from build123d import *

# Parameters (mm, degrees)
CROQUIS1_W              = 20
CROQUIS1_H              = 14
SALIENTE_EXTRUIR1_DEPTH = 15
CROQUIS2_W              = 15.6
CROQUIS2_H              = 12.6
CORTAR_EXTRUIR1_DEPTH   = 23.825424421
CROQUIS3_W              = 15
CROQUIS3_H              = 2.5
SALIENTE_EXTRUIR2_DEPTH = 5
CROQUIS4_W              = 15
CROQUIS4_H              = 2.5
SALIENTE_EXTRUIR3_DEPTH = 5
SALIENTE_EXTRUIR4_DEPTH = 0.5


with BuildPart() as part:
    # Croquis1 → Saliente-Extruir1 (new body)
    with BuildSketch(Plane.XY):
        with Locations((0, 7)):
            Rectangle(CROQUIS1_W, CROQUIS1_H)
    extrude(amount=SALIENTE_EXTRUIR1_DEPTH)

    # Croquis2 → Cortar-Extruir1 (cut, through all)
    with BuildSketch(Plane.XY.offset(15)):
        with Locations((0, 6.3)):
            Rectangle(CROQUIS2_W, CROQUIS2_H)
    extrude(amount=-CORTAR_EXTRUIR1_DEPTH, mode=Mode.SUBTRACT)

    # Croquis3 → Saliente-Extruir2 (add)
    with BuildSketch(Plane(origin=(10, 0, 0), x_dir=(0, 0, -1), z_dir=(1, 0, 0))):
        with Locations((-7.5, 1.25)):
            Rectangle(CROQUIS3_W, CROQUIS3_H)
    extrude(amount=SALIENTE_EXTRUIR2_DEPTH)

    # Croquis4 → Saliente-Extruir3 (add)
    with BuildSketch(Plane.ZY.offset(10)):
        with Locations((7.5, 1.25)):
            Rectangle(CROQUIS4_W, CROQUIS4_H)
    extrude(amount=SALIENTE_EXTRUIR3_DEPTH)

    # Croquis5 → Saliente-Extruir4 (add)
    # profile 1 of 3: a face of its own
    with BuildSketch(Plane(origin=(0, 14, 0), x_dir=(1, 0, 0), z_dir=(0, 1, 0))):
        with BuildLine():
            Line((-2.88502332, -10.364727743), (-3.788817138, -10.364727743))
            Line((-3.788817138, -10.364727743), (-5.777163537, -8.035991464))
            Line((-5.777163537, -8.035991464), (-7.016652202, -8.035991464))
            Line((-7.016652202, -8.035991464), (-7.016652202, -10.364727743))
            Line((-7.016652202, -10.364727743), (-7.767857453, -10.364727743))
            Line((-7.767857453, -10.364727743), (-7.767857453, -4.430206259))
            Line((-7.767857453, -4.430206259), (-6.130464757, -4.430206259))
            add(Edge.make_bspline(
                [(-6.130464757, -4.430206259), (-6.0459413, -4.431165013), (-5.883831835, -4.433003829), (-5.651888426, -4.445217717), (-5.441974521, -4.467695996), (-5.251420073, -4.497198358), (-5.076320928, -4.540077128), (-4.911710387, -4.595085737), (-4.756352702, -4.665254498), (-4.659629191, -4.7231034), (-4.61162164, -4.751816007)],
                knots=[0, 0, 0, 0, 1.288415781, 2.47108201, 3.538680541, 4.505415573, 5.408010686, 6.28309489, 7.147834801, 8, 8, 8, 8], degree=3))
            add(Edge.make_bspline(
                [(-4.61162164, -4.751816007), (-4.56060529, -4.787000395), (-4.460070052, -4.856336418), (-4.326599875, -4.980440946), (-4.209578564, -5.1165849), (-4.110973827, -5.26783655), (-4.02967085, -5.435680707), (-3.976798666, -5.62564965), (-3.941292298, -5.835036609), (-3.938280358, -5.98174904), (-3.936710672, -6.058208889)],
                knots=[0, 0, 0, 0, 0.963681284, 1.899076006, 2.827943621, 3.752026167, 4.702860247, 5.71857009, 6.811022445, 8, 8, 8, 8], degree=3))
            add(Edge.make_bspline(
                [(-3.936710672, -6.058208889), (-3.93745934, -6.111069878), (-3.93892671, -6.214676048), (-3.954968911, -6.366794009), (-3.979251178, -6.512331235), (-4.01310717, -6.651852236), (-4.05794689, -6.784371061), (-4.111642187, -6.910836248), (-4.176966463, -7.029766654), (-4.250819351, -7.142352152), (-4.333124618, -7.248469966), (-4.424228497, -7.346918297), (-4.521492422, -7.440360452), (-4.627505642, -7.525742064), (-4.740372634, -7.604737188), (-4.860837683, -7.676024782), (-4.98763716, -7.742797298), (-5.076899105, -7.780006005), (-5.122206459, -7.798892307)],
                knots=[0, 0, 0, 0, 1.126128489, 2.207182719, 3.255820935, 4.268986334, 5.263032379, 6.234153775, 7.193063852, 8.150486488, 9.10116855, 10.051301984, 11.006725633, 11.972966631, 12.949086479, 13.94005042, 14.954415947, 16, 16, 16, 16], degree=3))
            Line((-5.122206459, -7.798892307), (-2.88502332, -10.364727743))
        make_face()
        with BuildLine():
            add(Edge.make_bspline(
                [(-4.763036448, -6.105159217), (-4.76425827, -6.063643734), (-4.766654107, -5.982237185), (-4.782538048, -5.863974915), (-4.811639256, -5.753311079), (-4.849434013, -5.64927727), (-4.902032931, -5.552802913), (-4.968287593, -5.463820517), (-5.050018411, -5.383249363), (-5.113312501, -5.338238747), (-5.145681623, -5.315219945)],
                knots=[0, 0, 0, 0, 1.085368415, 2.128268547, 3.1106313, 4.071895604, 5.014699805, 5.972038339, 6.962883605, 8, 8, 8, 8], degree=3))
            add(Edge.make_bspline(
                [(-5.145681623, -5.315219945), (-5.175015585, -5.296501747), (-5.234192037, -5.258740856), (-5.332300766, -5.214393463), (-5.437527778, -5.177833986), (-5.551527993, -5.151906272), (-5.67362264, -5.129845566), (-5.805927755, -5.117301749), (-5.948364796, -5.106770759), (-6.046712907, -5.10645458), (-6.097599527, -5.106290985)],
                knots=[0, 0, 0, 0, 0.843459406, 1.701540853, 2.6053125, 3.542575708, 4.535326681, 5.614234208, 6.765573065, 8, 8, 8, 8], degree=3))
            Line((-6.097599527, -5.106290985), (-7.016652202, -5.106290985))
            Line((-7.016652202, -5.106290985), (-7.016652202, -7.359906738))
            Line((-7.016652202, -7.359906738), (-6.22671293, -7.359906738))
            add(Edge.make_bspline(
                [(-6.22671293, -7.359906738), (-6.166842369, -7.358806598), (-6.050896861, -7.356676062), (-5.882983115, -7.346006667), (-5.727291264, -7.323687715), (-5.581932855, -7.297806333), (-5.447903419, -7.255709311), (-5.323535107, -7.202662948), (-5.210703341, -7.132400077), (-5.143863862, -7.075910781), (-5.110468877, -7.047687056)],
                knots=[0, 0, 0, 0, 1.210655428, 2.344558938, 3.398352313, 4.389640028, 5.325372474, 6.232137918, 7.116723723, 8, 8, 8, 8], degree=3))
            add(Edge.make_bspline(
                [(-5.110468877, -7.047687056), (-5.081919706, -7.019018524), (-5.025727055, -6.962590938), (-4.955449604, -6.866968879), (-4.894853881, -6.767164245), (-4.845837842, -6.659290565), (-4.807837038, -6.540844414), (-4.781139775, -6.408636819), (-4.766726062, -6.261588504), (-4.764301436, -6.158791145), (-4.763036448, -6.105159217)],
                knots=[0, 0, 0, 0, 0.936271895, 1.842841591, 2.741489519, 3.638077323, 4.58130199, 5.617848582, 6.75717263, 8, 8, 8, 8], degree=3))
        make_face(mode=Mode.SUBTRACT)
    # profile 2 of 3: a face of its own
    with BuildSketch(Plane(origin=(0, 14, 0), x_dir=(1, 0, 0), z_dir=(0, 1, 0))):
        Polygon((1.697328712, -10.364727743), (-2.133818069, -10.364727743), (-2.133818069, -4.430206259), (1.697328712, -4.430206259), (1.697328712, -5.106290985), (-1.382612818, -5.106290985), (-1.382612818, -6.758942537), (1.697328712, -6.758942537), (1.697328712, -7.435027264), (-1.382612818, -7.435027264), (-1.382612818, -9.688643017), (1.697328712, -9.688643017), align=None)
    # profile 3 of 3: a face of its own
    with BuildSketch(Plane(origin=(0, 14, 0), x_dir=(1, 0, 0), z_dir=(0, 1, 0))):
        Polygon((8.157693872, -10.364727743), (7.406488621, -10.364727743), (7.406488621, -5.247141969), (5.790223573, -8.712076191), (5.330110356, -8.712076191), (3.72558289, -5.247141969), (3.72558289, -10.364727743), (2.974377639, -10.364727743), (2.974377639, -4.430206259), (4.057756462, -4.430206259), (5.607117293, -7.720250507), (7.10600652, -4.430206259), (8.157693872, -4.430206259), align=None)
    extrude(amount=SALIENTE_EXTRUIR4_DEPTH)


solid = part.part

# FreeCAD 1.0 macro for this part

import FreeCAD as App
import Part
import Sketcher

V = App.Vector
Q = App.Units.Quantity

doc = App.newDocument("Part")
params = doc.addObject("Spreadsheet::Sheet", "Params")
for row, (alias, value) in enumerate([
    ("sketch1_width", "20 mm"),
    ("sketch1_height", "14 mm"),
    ("pad1_length", "15 mm"),
    ("sketch2_width", "15.6 mm"),
    ("sketch2_height", "12.6 mm"),
    ("sketch3_height", "15 mm"),
    ("sketch3_width", "2.5 mm"),
    ("pad2_length", "5 mm"),
    ("sketch4_height", "15 mm"),
    ("sketch4_width", "2.5 mm"),
    ("pad3_length", "5 mm"),
    ("pad4_length", "0.5 mm"),
], start=1):
    params.set(f"A{row}", alias)
    params.set(f"B{row}", "=" + value)
    params.setAlias(f"B{row}", alias)

body = doc.addObject("PartDesign::Body", "Body")

sketch1 = doc.addObject("Sketcher::SketchObject", "Sketch")
body.addObject(sketch1)
sketch1.AttachmentSupport = (doc.XY_Plane, [""])
sketch1.MapMode = "FlatFace"
sketch1.addGeometry([
    Part.LineSegment(V(-10, 14, 0), V(-10, 0, 0)),
    Part.LineSegment(V(-10, 0, 0), V(10, 0, 0)),
    Part.LineSegment(V(10, 0, 0), V(10, 14, 0)),
    Part.LineSegment(V(10, 14, 0), V(-10, 14, 0)),
], False)
sketch1.addConstraint([
    Sketcher.Constraint("Coincident", 0, 2, 1, 1),
    Sketcher.Constraint("Coincident", 1, 2, 2, 1),
    Sketcher.Constraint("Coincident", 2, 2, 3, 1),
    Sketcher.Constraint("Coincident", 3, 2, 0, 1),
    Sketcher.Constraint("Vertical", 0),
    Sketcher.Constraint("Horizontal", 1),
    Sketcher.Constraint("Vertical", 2),
    Sketcher.Constraint("Horizontal", 3),
    Sketcher.Constraint("Symmetric", 0, 2, 1, 2, -1, 1),
    Sketcher.Constraint("DistanceX", 1, 1, 1, 2, Q("20 mm")),
    Sketcher.Constraint("DistanceY", 0, 2, 0, 1, Q("14 mm")),
])
sketch1.setExpression("Constraints[9]", "Params.sketch1_width")
sketch1.setExpression("Constraints[10]", "Params.sketch1_height")
pad1 = doc.addObject("PartDesign::Pad", "Pad")
body.addObject(pad1)
pad1.Profile = sketch1
pad1.setExpression("Length", "Params.pad1_length")

sketch2 = doc.addObject("Sketcher::SketchObject", "Sketch001")
body.addObject(sketch2)
sketch2.AttachmentSupport = (doc.XY_Plane, [""])
sketch2.MapMode = "FlatFace"
sketch2.AttachmentOffset = App.Placement(V(0, 0, 15), App.Rotation())
sketch2.addGeometry([
    Part.LineSegment(V(-7.8, 12.6, 0), V(-7.8, 0, 0)),
    Part.LineSegment(V(-7.8, 0, 0), V(7.8, 0, 0)),
    Part.LineSegment(V(7.8, 0, 0), V(7.8, 12.6, 0)),
    Part.LineSegment(V(7.8, 12.6, 0), V(-7.8, 12.6, 0)),
], False)
sketch2.addConstraint([
    Sketcher.Constraint("Coincident", 0, 2, 1, 1),
    Sketcher.Constraint("Coincident", 1, 2, 2, 1),
    Sketcher.Constraint("Coincident", 2, 2, 3, 1),
    Sketcher.Constraint("Coincident", 3, 2, 0, 1),
    Sketcher.Constraint("Vertical", 0),
    Sketcher.Constraint("Horizontal", 1),
    Sketcher.Constraint("Vertical", 2),
    Sketcher.Constraint("Horizontal", 3),
    Sketcher.Constraint("Symmetric", 0, 2, 1, 2, -1, 1),
    Sketcher.Constraint("DistanceX", 1, 1, 1, 2, Q("15.6 mm")),
    Sketcher.Constraint("DistanceY", 0, 2, 0, 1, Q("12.6 mm")),
])
sketch2.setExpression("Constraints[9]", "Params.sketch2_width")
sketch2.setExpression("Constraints[10]", "Params.sketch2_height")
pocket1 = doc.addObject("PartDesign::Pocket", "Pocket")
body.addObject(pocket1)
pocket1.Profile = sketch2
pocket1.Type = "ThroughAll"

sketch3 = doc.addObject("Sketcher::SketchObject", "Sketch002")
body.addObject(sketch3)
sketch3.AttachmentSupport = (doc.YZ_Plane, [""])
sketch3.MapMode = "FlatFace"
sketch3.AttachmentOffset = App.Placement(V(0, 0, 10), App.Rotation())
sketch3.addGeometry([
    Part.LineSegment(V(2.5, 15, 0), V(0, 15, 0)),
    Part.LineSegment(V(0, 15, 0), V(0, 0, 0)),
    Part.LineSegment(V(0, 0, 0), V(2.5, 0, 0)),
    Part.LineSegment(V(2.5, 0, 0), V(2.5, 15, 0)),
], False)
sketch3.addConstraint([
    Sketcher.Constraint("Coincident", 0, 2, 1, 1),
    Sketcher.Constraint("Coincident", 1, 2, 2, 1),
    Sketcher.Constraint("Coincident", 2, 2, 3, 1),
    Sketcher.Constraint("Coincident", 3, 2, 0, 1),
    Sketcher.Constraint("Horizontal", 0),
    Sketcher.Constraint("Vertical", 1),
    Sketcher.Constraint("Horizontal", 2),
    Sketcher.Constraint("Vertical", 3),
    Sketcher.Constraint("Coincident", 1, 2, -1, 1),
    Sketcher.Constraint("DistanceY", 1, 2, 1, 1, Q("15 mm")),
    Sketcher.Constraint("DistanceX", 0, 2, 0, 1, Q("2.5 mm")),
])
sketch3.setExpression("Constraints[9]", "Params.sketch3_height")
sketch3.setExpression("Constraints[10]", "Params.sketch3_width")
pad2 = doc.addObject("PartDesign::Pad", "Pad001")
body.addObject(pad2)
pad2.Profile = sketch3
pad2.setExpression("Length", "Params.pad2_length")

sketch4 = doc.addObject("Sketcher::SketchObject", "Sketch003")
body.addObject(sketch4)
sketch4.AttachmentSupport = (doc.YZ_Plane, [""])
sketch4.MapMode = "FlatFace"
sketch4.AttachmentOffset = App.Placement(V(0, 0, -10), App.Rotation())
sketch4.addGeometry([
    Part.LineSegment(V(2.5, 0, 0), V(0, 0, 0)),
    Part.LineSegment(V(0, 0, 0), V(0, 15, 0)),
    Part.LineSegment(V(0, 15, 0), V(2.5, 15, 0)),
    Part.LineSegment(V(2.5, 15, 0), V(2.5, 0, 0)),
], False)
sketch4.addConstraint([
    Sketcher.Constraint("Coincident", 0, 2, 1, 1),
    Sketcher.Constraint("Coincident", 1, 2, 2, 1),
    Sketcher.Constraint("Coincident", 2, 2, 3, 1),
    Sketcher.Constraint("Coincident", 3, 2, 0, 1),
    Sketcher.Constraint("Horizontal", 0),
    Sketcher.Constraint("Vertical", 1),
    Sketcher.Constraint("Horizontal", 2),
    Sketcher.Constraint("Vertical", 3),
    Sketcher.Constraint("Coincident", 0, 2, -1, 1),
    Sketcher.Constraint("DistanceY", 1, 1, 1, 2, Q("15 mm")),
    Sketcher.Constraint("DistanceX", 0, 2, 0, 1, Q("2.5 mm")),
])
sketch4.setExpression("Constraints[9]", "Params.sketch4_height")
sketch4.setExpression("Constraints[10]", "Params.sketch4_width")
pad3 = doc.addObject("PartDesign::Pad", "Pad002")
body.addObject(pad3)
pad3.Profile = sketch4
pad3.setExpression("Length", "Params.pad3_length")
pad3.Reversed = True

sketch5 = doc.addObject("Sketcher::SketchObject", "Sketch004")
body.addObject(sketch5)
sketch5.AttachmentSupport = (doc.XZ_Plane, [""])
sketch5.MapMode = "FlatFace"
sketch5.AttachmentOffset = App.Placement(V(0, 0, -14), App.Rotation())
sketch5.addGeometry([
    Part.LineSegment(V(-3.788817, 10.364728, 0), V(-2.885023, 10.364728, 0)),
    Part.LineSegment(V(-2.885023, 10.364728, 0), V(-5.122206, 7.798892, 0)),
    Part.BSplineCurve([V(-3.936711, 6.058209, 0), V(-3.937459, 6.11107, 0), V(-3.938927, 6.214676, 0), V(-3.954969, 6.366794, 0), V(-3.979251, 6.512331, 0), V(-4.013107, 6.651852, 0), V(-4.057947, 6.784371, 0), V(-4.111642, 6.910836, 0), V(-4.176966, 7.029767, 0), V(-4.250819, 7.142352, 0), V(-4.333125, 7.24847, 0), V(-4.424228, 7.346918, 0), V(-4.521492, 7.44036, 0), V(-4.627506, 7.525742, 0), V(-4.740373, 7.604737, 0), V(-4.860838, 7.676025, 0), V(-4.987637, 7.742797, 0), V(-5.076899, 7.780006, 0), V(-5.122206, 7.798892, 0)], [4, 1, 1, 1, 1, 1, 1, 1, 1, 1, 1, 1, 1, 1, 1, 1, 4], [0, 1.126128489, 2.207182719, 3.255820935, 4.268986334, 5.263032379, 6.234153775, 7.193063852, 8.150486488, 9.10116855, 10.051301984, 11.006725633, 11.972966631, 12.949086479, 13.94005042, 14.954415947, 16], False, 3, [1, 1, 1, 1, 1, 1, 1, 1, 1, 1, 1, 1, 1, 1, 1, 1, 1, 1, 1], False),
    Part.BSplineCurve([V(-4.611622, 4.751816, 0), V(-4.560605, 4.787, 0), V(-4.46007, 4.856336, 0), V(-4.3266, 4.980441, 0), V(-4.209579, 5.116585, 0), V(-4.110974, 5.267837, 0), V(-4.029671, 5.435681, 0), V(-3.976799, 5.62565, 0), V(-3.941292, 5.835037, 0), V(-3.93828, 5.981749, 0), V(-3.936711, 6.058209, 0)], [4, 1, 1, 1, 1, 1, 1, 1, 4], [0, 0.963681284, 1.899076006, 2.827943621, 3.752026167, 4.702860247, 5.71857009, 6.811022445, 8], False, 3, [1, 1, 1, 1, 1, 1, 1, 1, 1, 1, 1], False),
    Part.BSplineCurve([V(-6.130465, 4.430206, 0), V(-6.045941, 4.431165, 0), V(-5.883832, 4.433004, 0), V(-5.651888, 4.445218, 0), V(-5.441975, 4.467696, 0), V(-5.25142, 4.497198, 0), V(-5.076321, 4.540077, 0), V(-4.91171, 4.595086, 0), V(-4.756353, 4.665254, 0), V(-4.659629, 4.723103, 0), V(-4.611622, 4.751816, 0)], [4, 1, 1, 1, 1, 1, 1, 1, 4], [0, 1.288415781, 2.47108201, 3.538680541, 4.505415573, 5.408010686, 6.28309489, 7.147834801, 8], False, 3, [1, 1, 1, 1, 1, 1, 1, 1, 1, 1, 1], False),
    Part.LineSegment(V(-6.130465, 4.430206, 0), V(-7.767857, 4.430206, 0)),
    Part.LineSegment(V(-7.767857, 4.430206, 0), V(-7.767857, 10.364728, 0)),
    Part.LineSegment(V(-7.767857, 10.364728, 0), V(-7.016652, 10.364728, 0)),
    Part.LineSegment(V(-7.016652, 10.364728, 0), V(-7.016652, 8.035991, 0)),
    Part.LineSegment(V(-7.016652, 8.035991, 0), V(-5.777164, 8.035991, 0)),
    Part.LineSegment(V(-5.777164, 8.035991, 0), V(-3.788817, 10.364728, 0)),
    Part.BSplineCurve([V(-5.110469, 7.047687, 0), V(-5.08192, 7.019019, 0), V(-5.025727, 6.962591, 0), V(-4.95545, 6.866969, 0), V(-4.894854, 6.767164, 0), V(-4.845838, 6.659291, 0), V(-4.807837, 6.540844, 0), V(-4.78114, 6.408637, 0), V(-4.766726, 6.261589, 0), V(-4.764301, 6.158791, 0), V(-4.763036, 6.105159, 0)], [4, 1, 1, 1, 1, 1, 1, 1, 4], [0, 0.936271895, 1.842841591, 2.741489519, 3.638077323, 4.58130199, 5.617848582, 6.75717263, 8], False, 3, [1, 1, 1, 1, 1, 1, 1, 1, 1, 1, 1], False),
    Part.BSplineCurve([V(-6.226713, 7.359907, 0), V(-6.166842, 7.358807, 0), V(-6.050897, 7.356676, 0), V(-5.882983, 7.346007, 0), V(-5.727291, 7.323688, 0), V(-5.581933, 7.297806, 0), V(-5.447903, 7.255709, 0), V(-5.323535, 7.202663, 0), V(-5.210703, 7.1324, 0), V(-5.143864, 7.075911, 0), V(-5.110469, 7.047687, 0)], [4, 1, 1, 1, 1, 1, 1, 1, 4], [0, 1.210655428, 2.344558938, 3.398352313, 4.389640028, 5.325372474, 6.232137918, 7.116723723, 8], False, 3, [1, 1, 1, 1, 1, 1, 1, 1, 1, 1, 1], False),
    Part.LineSegment(V(-6.226713, 7.359907, 0), V(-7.016652, 7.359907, 0)),
    Part.LineSegment(V(-7.016652, 7.359907, 0), V(-7.016652, 5.106291, 0)),
    Part.LineSegment(V(-7.016652, 5.106291, 0), V(-6.0976, 5.106291, 0)),
    Part.BSplineCurve([V(-5.145682, 5.31522, 0), V(-5.175016, 5.296502, 0), V(-5.234192, 5.258741, 0), V(-5.332301, 5.214393, 0), V(-5.437528, 5.177834, 0), V(-5.551528, 5.151906, 0), V(-5.673623, 5.129846, 0), V(-5.805928, 5.117302, 0), V(-5.948365, 5.106771, 0), V(-6.046713, 5.106455, 0), V(-6.0976, 5.106291, 0)], [4, 1, 1, 1, 1, 1, 1, 1, 4], [0, 0.843459406, 1.701540853, 2.6053125, 3.542575708, 4.535326681, 5.614234208, 6.765573065, 8], False, 3, [1, 1, 1, 1, 1, 1, 1, 1, 1, 1, 1], False),
    Part.BSplineCurve([V(-4.763036, 6.105159, 0), V(-4.764258, 6.063644, 0), V(-4.766654, 5.982237, 0), V(-4.782538, 5.863975, 0), V(-4.811639, 5.753311, 0), V(-4.849434, 5.649277, 0), V(-4.902033, 5.552803, 0), V(-4.968288, 5.463821, 0), V(-5.050018, 5.383249, 0), V(-5.113313, 5.338239, 0), V(-5.145682, 5.31522, 0)], [4, 1, 1, 1, 1, 1, 1, 1, 4], [0, 1.085368415, 2.128268547, 3.1106313, 4.071895604, 5.014699805, 5.972038339, 6.962883605, 8], False, 3, [1, 1, 1, 1, 1, 1, 1, 1, 1, 1, 1], False),
    Part.LineSegment(V(-2.133818, 10.364728, 0), V(1.697329, 10.364728, 0)),
    Part.LineSegment(V(1.697329, 10.364728, 0), V(1.697329, 9.688643, 0)),
    Part.LineSegment(V(1.697329, 9.688643, 0), V(-1.382613, 9.688643, 0)),
    Part.LineSegment(V(-1.382613, 9.688643, 0), V(-1.382613, 7.435027, 0)),
    Part.LineSegment(V(-1.382613, 7.435027, 0), V(1.697329, 7.435027, 0)),
    Part.LineSegment(V(1.697329, 7.435027, 0), V(1.697329, 6.758943, 0)),
    Part.LineSegment(V(1.697329, 6.758943, 0), V(-1.382613, 6.758943, 0)),
    Part.LineSegment(V(-1.382613, 6.758943, 0), V(-1.382613, 5.106291, 0)),
    Part.LineSegment(V(-1.382613, 5.106291, 0), V(1.697329, 5.106291, 0)),
    Part.LineSegment(V(1.697329, 5.106291, 0), V(1.697329, 4.430206, 0)),
    Part.LineSegment(V(1.697329, 4.430206, 0), V(-2.133818, 4.430206, 0)),
    Part.LineSegment(V(-2.133818, 4.430206, 0), V(-2.133818, 10.364728, 0)),
    Part.LineSegment(V(7.406489, 10.364728, 0), V(8.157694, 10.364728, 0)),
    Part.LineSegment(V(8.157694, 10.364728, 0), V(8.157694, 4.430206, 0)),
    Part.LineSegment(V(8.157694, 4.430206, 0), V(7.106007, 4.430206, 0)),
    Part.LineSegment(V(7.106007, 4.430206, 0), V(5.607117, 7.720251, 0)),
    Part.LineSegment(V(5.607117, 7.720251, 0), V(4.057756, 4.430206, 0)),
    Part.LineSegment(V(4.057756, 4.430206, 0), V(2.974378, 4.430206, 0)),
    Part.LineSegment(V(2.974378, 4.430206, 0), V(2.974378, 10.364728, 0)),
    Part.LineSegment(V(2.974378, 10.364728, 0), V(3.725583, 10.364728, 0)),
    Part.LineSegment(V(3.725583, 10.364728, 0), V(3.725583, 5.247142, 0)),
    Part.LineSegment(V(3.725583, 5.247142, 0), V(5.33011, 8.712076, 0)),
    Part.LineSegment(V(5.33011, 8.712076, 0), V(5.790224, 8.712076, 0)),
    Part.LineSegment(V(5.790224, 8.712076, 0), V(7.406489, 5.247142, 0)),
    Part.LineSegment(V(7.406489, 5.247142, 0), V(7.406489, 10.364728, 0)),
], False)
sketch5.addConstraint([
    Sketcher.Constraint("Block", 2),
    Sketcher.Constraint("Block", 3),
    Sketcher.Constraint("Block", 4),
    Sketcher.Constraint("Block", 11),
    Sketcher.Constraint("Block", 12),
    Sketcher.Constraint("Block", 16),
    Sketcher.Constraint("Block", 17),
    Sketcher.Constraint("Coincident", 0, 2, 1, 1),
    Sketcher.Constraint("Coincident", 1, 2, 2, 2),
    Sketcher.Constraint("Coincident", 4, 1, 5, 1),
    Sketcher.Constraint("Coincident", 5, 2, 6, 1),
    Sketcher.Constraint("Coincident", 6, 2, 7, 1),
    Sketcher.Constraint("Coincident", 7, 2, 8, 1),
    Sketcher.Constraint("Coincident", 8, 2, 9, 1),
    Sketcher.Constraint("Coincident", 9, 2, 10, 1),
    Sketcher.Constraint("Coincident", 10, 2, 0, 1),
    Sketcher.Constraint("Coincident", 12, 1, 13, 1),
    Sketcher.Constraint("Coincident", 13, 2, 14, 1),
    Sketcher.Constraint("Coincident", 14, 2, 15, 1),
    Sketcher.Constraint("Coincident", 15, 2, 16, 2),
    Sketcher.Constraint("Coincident", 18, 2, 19, 1),
    Sketcher.Constraint("Coincident", 19, 2, 20, 1),
    Sketcher.Constraint("Coincident", 20, 2, 21, 1),
    Sketcher.Constraint("Coincident", 21, 2, 22, 1),
    Sketcher.Constraint("Coincident", 22, 2, 23, 1),
    Sketcher.Constraint("Coincident", 23, 2, 24, 1),
    Sketcher.Constraint("Coincident", 24, 2, 25, 1),
    Sketcher.Constraint("Coincident", 25, 2, 26, 1),
    Sketcher.Constraint("Coincident", 26, 2, 27, 1),
    Sketcher.Constraint("Coincident", 27, 2, 28, 1),
    Sketcher.Constraint("Coincident", 28, 2, 29, 1),
    Sketcher.Constraint("Coincident", 29, 2, 18, 1),
    Sketcher.Constraint("Coincident", 30, 2, 31, 1),
    Sketcher.Constraint("Coincident", 31, 2, 32, 1),
    Sketcher.Constraint("Coincident", 32, 2, 33, 1),
    Sketcher.Constraint("Coincident", 33, 2, 34, 1),
    Sketcher.Constraint("Coincident", 34, 2, 35, 1),
    Sketcher.Constraint("Coincident", 35, 2, 36, 1),
    Sketcher.Constraint("Coincident", 36, 2, 37, 1),
    Sketcher.Constraint("Coincident", 37, 2, 38, 1),
    Sketcher.Constraint("Coincident", 38, 2, 39, 1),
    Sketcher.Constraint("Coincident", 39, 2, 40, 1),
    Sketcher.Constraint("Coincident", 40, 2, 41, 1),
    Sketcher.Constraint("Coincident", 41, 2, 42, 1),
    Sketcher.Constraint("Coincident", 42, 2, 30, 1),
    Sketcher.Constraint("Horizontal", 0),
    Sketcher.Constraint("Horizontal", 5),
    Sketcher.Constraint("Vertical", 6),
    Sketcher.Constraint("Horizontal", 7),
    Sketcher.Constraint("Vertical", 8),
    Sketcher.Constraint("Horizontal", 9),
    Sketcher.Constraint("Horizontal", 13),
    Sketcher.Constraint("Vertical", 14),
    Sketcher.Constraint("Horizontal", 15),
    Sketcher.Constraint("Horizontal", 18),
    Sketcher.Constraint("Vertical", 19),
    Sketcher.Constraint("Horizontal", 20),
    Sketcher.Constraint("Vertical", 21),
    Sketcher.Constraint("Horizontal", 22),
    Sketcher.Constraint("Vertical", 23),
    Sketcher.Constraint("Horizontal", 24),
    Sketcher.Constraint("Vertical", 25),
    Sketcher.Constraint("Horizontal", 26),
    Sketcher.Constraint("Vertical", 27),
    Sketcher.Constraint("Horizontal", 28),
    Sketcher.Constraint("Vertical", 29),
    Sketcher.Constraint("Horizontal", 30),
    Sketcher.Constraint("Vertical", 31),
    Sketcher.Constraint("Horizontal", 32),
    Sketcher.Constraint("Horizontal", 35),
    Sketcher.Constraint("Vertical", 36),
    Sketcher.Constraint("Horizontal", 37),
    Sketcher.Constraint("Vertical", 38),
    Sketcher.Constraint("Horizontal", 40),
    Sketcher.Constraint("Vertical", 42),
    Sketcher.Constraint("DistanceX", 10, 2, 29, 2, Q("1.654999 mm")),
    Sketcher.Constraint("DistanceX", 9, 1, 9, 2, Q("1.239489 mm")),
    Sketcher.Constraint("DistanceX", 13, 2, 13, 1, Q("0.789939 mm")),
    Sketcher.Constraint("DistanceX", 20, 2, 20, 1, Q("3.079942 mm")),
    Sketcher.Constraint("DistanceX", 22, 1, 22, 2, Q("3.079942 mm")),
    Sketcher.Constraint("DistanceX", 24, 2, 24, 1, Q("3.079942 mm")),
    Sketcher.Constraint("DistanceX", 26, 1, 26, 2, Q("3.079942 mm")),
    Sketcher.Constraint("DistanceX", 35, 2, 35, 1, Q("1.083379 mm")),
    Sketcher.Constraint("DistanceY", 6, 1, 6, 2, Q("5.934521 mm")),
    Sketcher.Constraint("DistanceY", 25, 2, 25, 1, Q("1.652652 mm")),
    Sketcher.Constraint("DistanceY", 29, 1, 29, 2, Q("5.934521 mm")),
    Sketcher.Constraint("DistanceY", 31, 2, 31, 1, Q("5.934521 mm")),
    Sketcher.Constraint("DistanceY", 36, 1, 36, 2, Q("5.934521 mm")),
    Sketcher.Constraint("DistanceY", 1, 2, 8, 2, Q("0.237099 mm")),
    Sketcher.Constraint("DistanceY", 21, 2, 0, 2, Q("2.9297 mm")),
    Sketcher.Constraint("DistanceY", 22, 2, 18, 2, Q("2.9297 mm")),
    Sketcher.Constraint("DistanceY", 23, 2, 19, 2, Q("2.9297 mm")),
    Sketcher.Constraint("DistanceY", 22, 2, 30, 2, Q("2.9297 mm")),
    Sketcher.Constraint("DistanceY", 22, 2, 36, 2, Q("2.9297 mm")),
    Sketcher.Constraint("DistanceY", 38, 2, 23, 2, Q("1.511801 mm")),
    Sketcher.Constraint("Distance", 1, Q("3.404189 mm")),
    Sketcher.Constraint("Distance", 41, Q("3.82336 mm")),
    Sketcher.Constraint("DistanceX", 0, 1, 0, 2, Q("0.903794 mm")),
    Sketcher.Constraint("DistanceX", 5, 2, 5, 1, Q("1.637393 mm")),
    Sketcher.Constraint("DistanceX", 7, 1, 7, 2, Q("0.751205 mm")),
    Sketcher.Constraint("DistanceX", 18, 1, 18, 2, Q("3.831147 mm")),
    Sketcher.Constraint("DistanceX", 30, 1, 30, 2, Q("0.751205 mm")),
    Sketcher.Constraint("DistanceX", 32, 2, 32, 1, Q("1.051687 mm")),
    Sketcher.Constraint("DistanceX", 37, 1, 37, 2, Q("0.751205 mm")),
    Sketcher.Constraint("DistanceX", 40, 1, 40, 2, Q("0.460113 mm")),
    Sketcher.Constraint("DistanceY", 19, 2, 19, 1, Q("0.676085 mm")),
    Sketcher.Constraint("DistanceY", 42, 1, 42, 2, Q("5.117586 mm")),
    Sketcher.Constraint("DistanceX", -1, 1, 18, 2, Q("1.697329 mm")),
    Sketcher.Constraint("DistanceY", -1, 1, 33, 2, Q("7.720251 mm")),
    Sketcher.Constraint("DistanceX", -1, 1, 39, 2, Q("5.33011 mm")),
    Sketcher.Constraint("DistanceX", -1, 1, 41, 2, Q("7.406489 mm")),
    Sketcher.Constraint("DistanceX", 33, 2, 32, 2, Q("1.498889 mm")),
    Sketcher.Constraint("DistanceX", 34, 2, 32, 2, Q("3.04825 mm")),
])
pad4 = doc.addObject("PartDesign::Pad", "Pad003")
body.addObject(pad4)
pad4.Profile = sketch5
pad4.setExpression("Length", "Params.pad4_length")
pad4.Reversed = True

doc.recompute()
